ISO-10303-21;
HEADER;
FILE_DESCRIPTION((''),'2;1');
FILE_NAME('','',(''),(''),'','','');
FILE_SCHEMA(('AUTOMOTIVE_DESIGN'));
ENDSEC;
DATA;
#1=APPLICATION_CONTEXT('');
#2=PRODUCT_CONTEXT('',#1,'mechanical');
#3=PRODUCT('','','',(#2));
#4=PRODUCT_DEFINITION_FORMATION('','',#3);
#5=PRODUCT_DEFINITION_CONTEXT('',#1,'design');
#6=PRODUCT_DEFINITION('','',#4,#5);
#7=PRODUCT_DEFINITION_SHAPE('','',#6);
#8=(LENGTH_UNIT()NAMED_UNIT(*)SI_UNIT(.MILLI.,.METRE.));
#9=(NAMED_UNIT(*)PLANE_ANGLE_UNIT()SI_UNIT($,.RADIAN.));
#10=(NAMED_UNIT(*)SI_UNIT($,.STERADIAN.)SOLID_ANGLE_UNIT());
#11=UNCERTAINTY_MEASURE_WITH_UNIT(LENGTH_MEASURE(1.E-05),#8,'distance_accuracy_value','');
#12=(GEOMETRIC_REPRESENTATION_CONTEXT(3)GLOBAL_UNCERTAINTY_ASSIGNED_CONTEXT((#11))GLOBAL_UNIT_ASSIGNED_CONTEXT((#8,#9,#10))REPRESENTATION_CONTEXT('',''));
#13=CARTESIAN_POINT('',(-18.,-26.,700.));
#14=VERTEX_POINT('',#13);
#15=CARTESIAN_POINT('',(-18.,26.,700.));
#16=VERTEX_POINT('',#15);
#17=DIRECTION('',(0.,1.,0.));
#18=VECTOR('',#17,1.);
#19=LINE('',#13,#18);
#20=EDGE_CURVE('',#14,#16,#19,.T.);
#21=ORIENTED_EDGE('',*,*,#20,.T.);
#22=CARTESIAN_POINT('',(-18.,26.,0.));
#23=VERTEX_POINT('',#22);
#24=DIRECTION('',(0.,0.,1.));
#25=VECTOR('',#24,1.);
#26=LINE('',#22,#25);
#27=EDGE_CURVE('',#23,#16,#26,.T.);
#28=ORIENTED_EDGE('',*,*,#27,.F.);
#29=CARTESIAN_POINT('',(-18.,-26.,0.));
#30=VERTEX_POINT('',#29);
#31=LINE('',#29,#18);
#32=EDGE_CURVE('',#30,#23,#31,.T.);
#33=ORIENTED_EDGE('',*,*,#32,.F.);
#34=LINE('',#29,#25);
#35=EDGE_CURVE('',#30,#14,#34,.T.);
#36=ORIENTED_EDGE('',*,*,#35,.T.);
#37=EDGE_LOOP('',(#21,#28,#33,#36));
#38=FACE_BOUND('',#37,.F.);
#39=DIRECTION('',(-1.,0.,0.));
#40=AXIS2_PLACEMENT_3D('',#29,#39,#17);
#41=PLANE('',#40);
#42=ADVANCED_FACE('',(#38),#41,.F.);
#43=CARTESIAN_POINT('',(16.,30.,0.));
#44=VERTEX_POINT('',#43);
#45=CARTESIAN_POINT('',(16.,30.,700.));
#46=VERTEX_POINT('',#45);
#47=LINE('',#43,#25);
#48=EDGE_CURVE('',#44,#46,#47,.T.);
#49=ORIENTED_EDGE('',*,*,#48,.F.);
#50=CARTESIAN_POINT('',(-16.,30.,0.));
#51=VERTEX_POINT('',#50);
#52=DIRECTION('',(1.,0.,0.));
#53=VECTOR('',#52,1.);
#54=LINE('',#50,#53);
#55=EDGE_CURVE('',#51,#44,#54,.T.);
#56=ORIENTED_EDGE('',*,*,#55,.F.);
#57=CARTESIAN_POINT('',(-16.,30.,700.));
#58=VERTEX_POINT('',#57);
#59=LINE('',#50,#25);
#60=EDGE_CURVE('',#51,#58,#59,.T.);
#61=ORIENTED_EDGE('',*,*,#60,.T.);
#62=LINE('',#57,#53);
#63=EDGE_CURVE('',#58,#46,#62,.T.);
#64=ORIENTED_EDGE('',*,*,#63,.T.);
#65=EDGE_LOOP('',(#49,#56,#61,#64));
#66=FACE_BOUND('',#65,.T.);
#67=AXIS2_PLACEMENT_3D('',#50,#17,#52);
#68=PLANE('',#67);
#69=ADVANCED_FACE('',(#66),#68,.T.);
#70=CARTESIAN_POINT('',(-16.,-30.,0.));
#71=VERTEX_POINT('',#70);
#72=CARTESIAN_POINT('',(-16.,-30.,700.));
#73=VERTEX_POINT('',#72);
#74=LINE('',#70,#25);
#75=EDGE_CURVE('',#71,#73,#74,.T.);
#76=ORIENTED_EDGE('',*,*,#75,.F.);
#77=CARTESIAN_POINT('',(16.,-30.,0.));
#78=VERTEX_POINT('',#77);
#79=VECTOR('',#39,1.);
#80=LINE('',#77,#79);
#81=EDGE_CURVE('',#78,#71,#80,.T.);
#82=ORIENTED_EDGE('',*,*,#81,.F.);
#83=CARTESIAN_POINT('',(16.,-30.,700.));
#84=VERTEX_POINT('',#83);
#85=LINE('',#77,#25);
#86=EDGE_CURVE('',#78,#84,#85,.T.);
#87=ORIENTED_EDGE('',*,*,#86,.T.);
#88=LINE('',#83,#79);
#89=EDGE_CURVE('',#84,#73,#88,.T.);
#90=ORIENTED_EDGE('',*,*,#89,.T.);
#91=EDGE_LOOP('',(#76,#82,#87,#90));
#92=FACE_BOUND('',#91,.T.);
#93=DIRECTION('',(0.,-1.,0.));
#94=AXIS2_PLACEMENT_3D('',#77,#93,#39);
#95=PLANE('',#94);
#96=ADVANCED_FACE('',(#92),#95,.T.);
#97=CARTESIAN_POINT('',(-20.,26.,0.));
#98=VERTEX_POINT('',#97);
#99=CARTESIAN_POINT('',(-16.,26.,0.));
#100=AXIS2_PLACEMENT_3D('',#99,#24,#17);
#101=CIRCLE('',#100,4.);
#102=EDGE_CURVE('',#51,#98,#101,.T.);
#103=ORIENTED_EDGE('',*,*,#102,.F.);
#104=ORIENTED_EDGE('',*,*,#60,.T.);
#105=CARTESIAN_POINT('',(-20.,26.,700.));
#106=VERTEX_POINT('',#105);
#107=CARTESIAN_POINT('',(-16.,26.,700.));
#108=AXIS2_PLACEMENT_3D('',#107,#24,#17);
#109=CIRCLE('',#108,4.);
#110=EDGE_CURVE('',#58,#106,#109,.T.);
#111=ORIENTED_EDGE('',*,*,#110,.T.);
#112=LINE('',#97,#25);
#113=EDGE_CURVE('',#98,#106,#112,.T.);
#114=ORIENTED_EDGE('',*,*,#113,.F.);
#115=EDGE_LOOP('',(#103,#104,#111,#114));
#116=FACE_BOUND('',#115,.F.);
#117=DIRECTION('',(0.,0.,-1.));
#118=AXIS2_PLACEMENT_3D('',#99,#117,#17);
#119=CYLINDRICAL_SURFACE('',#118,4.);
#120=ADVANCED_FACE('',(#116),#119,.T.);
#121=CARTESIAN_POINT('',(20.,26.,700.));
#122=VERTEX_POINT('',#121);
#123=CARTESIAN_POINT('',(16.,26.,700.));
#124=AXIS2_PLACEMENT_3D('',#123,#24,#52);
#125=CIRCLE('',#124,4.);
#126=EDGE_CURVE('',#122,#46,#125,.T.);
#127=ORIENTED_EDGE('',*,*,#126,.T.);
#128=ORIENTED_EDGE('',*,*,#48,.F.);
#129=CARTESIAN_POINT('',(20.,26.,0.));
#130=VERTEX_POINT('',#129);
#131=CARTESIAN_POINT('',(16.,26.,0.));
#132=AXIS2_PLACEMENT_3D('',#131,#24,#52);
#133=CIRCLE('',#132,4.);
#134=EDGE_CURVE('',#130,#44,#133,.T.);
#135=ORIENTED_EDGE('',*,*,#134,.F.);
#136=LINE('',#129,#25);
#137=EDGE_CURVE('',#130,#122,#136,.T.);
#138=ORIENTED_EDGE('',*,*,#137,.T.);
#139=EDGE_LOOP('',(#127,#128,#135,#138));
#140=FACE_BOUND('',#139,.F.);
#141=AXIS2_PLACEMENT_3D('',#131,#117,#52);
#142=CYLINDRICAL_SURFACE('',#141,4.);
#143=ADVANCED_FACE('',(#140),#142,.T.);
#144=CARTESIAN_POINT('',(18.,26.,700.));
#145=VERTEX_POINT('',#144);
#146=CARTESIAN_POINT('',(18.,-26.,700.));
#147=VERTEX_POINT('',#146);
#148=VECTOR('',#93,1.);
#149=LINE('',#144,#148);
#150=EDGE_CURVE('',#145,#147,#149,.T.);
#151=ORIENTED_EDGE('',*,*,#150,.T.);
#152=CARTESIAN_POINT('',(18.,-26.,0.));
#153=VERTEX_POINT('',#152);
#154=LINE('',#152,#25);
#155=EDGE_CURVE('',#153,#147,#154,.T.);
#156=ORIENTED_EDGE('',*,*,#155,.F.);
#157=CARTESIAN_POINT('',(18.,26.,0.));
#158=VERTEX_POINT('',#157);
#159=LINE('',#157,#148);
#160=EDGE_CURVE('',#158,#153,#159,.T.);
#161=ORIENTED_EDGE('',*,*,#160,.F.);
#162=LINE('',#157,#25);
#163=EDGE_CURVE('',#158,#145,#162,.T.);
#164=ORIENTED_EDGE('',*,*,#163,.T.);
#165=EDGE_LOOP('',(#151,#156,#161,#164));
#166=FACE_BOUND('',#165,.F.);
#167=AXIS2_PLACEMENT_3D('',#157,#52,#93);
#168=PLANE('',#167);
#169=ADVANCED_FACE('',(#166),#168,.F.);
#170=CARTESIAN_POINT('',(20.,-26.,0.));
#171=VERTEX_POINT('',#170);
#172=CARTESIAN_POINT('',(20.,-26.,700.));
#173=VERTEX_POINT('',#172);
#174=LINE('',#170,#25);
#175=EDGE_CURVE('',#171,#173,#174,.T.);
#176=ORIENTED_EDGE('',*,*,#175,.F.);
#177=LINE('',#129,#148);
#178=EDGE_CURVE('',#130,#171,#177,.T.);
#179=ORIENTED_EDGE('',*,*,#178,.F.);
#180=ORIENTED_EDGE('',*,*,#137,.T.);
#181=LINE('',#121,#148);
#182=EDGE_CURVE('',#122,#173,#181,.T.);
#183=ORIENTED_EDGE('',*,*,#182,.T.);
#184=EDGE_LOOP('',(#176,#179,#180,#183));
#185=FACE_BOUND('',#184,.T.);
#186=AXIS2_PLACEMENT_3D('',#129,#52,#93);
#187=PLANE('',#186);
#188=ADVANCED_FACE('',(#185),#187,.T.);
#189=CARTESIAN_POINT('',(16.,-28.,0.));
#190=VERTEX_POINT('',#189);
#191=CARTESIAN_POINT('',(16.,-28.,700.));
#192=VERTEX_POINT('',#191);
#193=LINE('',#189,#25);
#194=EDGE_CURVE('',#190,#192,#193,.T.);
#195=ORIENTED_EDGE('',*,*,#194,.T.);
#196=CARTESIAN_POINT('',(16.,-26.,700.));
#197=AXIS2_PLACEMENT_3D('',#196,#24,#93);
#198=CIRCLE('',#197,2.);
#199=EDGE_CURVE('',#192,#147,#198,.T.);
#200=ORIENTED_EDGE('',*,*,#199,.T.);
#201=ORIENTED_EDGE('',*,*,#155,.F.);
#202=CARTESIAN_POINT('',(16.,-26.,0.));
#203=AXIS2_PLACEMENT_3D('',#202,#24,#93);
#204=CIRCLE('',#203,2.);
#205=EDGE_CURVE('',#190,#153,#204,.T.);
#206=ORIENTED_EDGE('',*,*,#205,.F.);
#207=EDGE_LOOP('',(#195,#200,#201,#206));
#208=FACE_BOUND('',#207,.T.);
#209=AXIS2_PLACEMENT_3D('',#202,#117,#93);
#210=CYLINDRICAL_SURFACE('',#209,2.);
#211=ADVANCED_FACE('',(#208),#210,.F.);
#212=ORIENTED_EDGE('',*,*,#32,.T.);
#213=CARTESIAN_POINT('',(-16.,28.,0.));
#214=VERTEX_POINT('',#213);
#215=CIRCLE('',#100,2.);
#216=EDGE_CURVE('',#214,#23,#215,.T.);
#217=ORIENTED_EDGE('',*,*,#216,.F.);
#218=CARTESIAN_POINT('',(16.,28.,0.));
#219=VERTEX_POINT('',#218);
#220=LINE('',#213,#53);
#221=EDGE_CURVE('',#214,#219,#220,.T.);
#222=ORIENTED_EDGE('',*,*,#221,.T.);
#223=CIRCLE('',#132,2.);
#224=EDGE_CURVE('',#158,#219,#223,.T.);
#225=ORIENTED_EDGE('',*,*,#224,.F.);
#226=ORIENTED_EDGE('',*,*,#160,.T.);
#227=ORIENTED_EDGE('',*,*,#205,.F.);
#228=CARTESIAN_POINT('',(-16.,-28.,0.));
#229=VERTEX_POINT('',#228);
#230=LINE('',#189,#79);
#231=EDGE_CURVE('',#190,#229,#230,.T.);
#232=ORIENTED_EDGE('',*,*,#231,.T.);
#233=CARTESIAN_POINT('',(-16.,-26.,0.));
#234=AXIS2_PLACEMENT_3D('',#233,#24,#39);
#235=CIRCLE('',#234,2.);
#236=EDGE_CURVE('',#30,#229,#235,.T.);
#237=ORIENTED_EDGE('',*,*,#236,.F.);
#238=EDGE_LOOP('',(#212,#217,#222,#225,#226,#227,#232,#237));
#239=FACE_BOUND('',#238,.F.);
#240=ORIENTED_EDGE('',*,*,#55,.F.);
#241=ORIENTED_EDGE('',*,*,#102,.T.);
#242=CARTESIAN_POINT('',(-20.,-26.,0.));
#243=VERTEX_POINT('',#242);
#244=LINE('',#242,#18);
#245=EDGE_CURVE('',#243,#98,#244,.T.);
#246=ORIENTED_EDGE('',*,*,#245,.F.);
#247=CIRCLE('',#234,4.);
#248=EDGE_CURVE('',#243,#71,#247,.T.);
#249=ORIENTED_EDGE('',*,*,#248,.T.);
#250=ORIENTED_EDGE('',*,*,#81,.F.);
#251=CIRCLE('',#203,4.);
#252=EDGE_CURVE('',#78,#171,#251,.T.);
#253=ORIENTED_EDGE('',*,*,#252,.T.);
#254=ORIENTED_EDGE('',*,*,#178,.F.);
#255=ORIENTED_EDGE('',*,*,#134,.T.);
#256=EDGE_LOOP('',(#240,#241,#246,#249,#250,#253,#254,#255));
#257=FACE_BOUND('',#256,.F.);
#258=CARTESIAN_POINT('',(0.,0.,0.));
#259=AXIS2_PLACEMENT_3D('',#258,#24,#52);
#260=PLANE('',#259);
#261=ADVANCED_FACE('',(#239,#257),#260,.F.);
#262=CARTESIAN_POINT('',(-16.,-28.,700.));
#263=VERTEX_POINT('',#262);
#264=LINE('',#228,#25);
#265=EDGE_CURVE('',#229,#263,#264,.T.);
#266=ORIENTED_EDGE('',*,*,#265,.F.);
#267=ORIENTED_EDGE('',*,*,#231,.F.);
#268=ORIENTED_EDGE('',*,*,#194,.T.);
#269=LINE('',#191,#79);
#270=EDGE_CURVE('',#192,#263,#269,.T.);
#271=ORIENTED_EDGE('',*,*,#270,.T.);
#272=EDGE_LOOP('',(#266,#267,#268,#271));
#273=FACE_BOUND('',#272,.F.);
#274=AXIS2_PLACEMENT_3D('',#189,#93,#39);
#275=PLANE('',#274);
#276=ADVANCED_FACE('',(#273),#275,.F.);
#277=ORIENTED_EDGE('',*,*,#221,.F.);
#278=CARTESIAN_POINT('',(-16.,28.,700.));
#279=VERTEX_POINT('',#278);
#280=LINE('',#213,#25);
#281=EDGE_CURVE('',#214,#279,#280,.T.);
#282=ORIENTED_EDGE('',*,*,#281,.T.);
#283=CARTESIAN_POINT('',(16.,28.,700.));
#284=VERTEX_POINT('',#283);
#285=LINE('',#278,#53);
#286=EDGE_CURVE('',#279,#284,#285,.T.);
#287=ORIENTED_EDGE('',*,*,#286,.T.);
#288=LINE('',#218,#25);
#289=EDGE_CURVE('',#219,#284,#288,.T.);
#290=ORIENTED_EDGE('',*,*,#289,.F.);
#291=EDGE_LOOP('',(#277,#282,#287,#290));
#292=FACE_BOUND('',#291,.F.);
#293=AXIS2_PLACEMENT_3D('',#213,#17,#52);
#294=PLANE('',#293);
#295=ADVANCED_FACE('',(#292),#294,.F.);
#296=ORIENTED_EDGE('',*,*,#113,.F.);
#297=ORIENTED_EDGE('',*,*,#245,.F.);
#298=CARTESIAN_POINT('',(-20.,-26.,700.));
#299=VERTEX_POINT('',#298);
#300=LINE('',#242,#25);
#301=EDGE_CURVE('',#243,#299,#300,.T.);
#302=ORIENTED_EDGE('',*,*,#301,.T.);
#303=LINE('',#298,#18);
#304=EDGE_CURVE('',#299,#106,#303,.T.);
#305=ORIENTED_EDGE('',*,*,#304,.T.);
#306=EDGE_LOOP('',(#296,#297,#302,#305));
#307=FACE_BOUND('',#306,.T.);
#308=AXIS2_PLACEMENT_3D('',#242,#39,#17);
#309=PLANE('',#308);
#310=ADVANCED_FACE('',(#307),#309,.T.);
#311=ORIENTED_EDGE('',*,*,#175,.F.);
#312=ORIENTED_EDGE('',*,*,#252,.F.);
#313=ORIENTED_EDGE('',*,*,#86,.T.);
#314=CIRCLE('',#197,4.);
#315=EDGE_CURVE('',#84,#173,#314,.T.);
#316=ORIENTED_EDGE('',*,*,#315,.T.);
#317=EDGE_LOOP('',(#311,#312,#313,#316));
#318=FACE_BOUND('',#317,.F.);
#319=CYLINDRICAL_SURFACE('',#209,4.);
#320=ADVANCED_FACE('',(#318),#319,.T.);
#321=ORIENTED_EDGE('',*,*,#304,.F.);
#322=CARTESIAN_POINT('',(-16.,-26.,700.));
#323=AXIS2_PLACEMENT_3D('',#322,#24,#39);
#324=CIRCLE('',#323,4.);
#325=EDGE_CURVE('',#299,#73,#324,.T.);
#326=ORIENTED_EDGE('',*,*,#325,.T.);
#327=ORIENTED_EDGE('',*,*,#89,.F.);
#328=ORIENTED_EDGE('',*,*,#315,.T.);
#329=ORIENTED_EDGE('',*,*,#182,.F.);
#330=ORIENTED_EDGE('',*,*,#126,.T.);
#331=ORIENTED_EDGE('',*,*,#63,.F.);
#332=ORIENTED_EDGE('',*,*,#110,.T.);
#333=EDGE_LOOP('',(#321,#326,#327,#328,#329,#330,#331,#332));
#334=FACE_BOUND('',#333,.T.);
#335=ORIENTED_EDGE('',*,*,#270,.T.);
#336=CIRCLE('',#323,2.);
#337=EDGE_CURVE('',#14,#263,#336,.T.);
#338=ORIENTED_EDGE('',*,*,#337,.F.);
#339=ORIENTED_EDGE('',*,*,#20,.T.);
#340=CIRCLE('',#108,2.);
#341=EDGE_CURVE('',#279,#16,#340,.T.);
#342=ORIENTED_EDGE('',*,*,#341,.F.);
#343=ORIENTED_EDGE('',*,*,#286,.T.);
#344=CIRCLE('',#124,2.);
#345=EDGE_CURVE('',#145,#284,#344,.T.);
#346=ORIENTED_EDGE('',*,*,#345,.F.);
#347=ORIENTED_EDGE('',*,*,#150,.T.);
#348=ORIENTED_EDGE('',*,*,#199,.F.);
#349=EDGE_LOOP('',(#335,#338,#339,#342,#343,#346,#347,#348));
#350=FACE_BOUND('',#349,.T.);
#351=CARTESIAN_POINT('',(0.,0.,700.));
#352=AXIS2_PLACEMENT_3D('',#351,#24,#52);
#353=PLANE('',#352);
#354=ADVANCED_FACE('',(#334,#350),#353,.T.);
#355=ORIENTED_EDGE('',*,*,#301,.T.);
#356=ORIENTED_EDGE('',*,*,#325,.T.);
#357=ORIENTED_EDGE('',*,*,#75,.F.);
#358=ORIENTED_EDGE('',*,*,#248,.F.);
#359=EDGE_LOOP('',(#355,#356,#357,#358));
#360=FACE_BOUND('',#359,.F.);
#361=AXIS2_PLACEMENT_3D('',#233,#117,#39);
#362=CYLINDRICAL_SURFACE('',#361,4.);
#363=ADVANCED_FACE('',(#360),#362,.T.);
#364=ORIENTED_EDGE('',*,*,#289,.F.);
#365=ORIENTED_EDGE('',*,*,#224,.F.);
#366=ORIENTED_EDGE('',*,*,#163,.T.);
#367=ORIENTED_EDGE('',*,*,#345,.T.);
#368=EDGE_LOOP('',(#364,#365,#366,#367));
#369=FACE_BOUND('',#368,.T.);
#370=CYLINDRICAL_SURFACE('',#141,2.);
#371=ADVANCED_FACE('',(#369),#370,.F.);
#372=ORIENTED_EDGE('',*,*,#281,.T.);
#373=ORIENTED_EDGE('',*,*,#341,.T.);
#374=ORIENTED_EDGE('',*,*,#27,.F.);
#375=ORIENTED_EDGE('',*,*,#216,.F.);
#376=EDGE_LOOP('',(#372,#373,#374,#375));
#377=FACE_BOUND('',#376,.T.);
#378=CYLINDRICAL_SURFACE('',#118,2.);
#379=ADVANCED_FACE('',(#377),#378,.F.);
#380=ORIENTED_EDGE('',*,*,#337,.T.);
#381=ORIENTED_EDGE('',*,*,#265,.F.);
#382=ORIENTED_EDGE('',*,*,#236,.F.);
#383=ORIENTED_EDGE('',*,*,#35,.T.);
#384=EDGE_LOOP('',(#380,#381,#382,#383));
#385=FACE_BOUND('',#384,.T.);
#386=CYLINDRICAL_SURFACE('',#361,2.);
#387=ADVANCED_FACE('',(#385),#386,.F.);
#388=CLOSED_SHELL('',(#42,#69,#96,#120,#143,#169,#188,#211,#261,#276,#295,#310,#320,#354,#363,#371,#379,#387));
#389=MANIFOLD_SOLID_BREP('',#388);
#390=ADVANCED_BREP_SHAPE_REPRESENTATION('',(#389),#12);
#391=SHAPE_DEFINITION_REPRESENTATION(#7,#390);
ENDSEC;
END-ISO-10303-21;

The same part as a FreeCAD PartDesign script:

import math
import FreeCAD as App
import Part
import Sketcher
Q = App.Units.Quantity

doc = App.newDocument("Part")
body = doc.addObject("PartDesign::Body", "Body")

sketch1 = doc.addObject("Sketcher::SketchObject", "Sketch")
body.addObject(sketch1)
sketch1.AttachmentSupport = (doc.XY_Plane, [""])
sketch1.MapMode = "FlatFace"
sketch1.addGeometry([
    Part.LineSegment(App.Vector(-20, 26, 0), App.Vector(-20, -26, 0)),
    Part.ArcOfCircle(Part.Circle(App.Vector(-16, -26, 0), App.Vector(0, 0, 1), 4), math.radians(180), math.radians(270)),
    Part.LineSegment(App.Vector(-16, -30, 0), App.Vector(16, -30, 0)),
    Part.ArcOfCircle(Part.Circle(App.Vector(16, -26, 0), App.Vector(0, 0, 1), 4), math.radians(-90), math.radians(0)),
    Part.LineSegment(App.Vector(20, -26, 0), App.Vector(20, 26, 0)),
    Part.ArcOfCircle(Part.Circle(App.Vector(16, 26, 0), App.Vector(0, 0, 1), 4), math.radians(0), math.radians(90)),
    Part.LineSegment(App.Vector(16, 30, 0), App.Vector(-16, 30, 0)),
    Part.ArcOfCircle(Part.Circle(App.Vector(-16, 26, 0), App.Vector(0, 0, 1), 4), math.radians(90), math.radians(180)),
    Part.ArcOfCircle(Part.Circle(App.Vector(-16, 26, 0), App.Vector(0, 0, 1), 2), math.radians(90), math.radians(180)),
    Part.LineSegment(App.Vector(-16, 28, 0), App.Vector(16, 28, 0)),
    Part.ArcOfCircle(Part.Circle(App.Vector(16, 26, 0), App.Vector(0, 0, 1), 2), math.radians(0), math.radians(90)),
    Part.LineSegment(App.Vector(18, 26, 0), App.Vector(18, -26, 0)),
    Part.ArcOfCircle(Part.Circle(App.Vector(16, -26, 0), App.Vector(0, 0, 1), 2), math.radians(-90), math.radians(0)),
    Part.LineSegment(App.Vector(16, -28, 0), App.Vector(-16, -28, 0)),
    Part.ArcOfCircle(Part.Circle(App.Vector(-16, -26, 0), App.Vector(0, 0, 1), 2), math.radians(180), math.radians(270)),
    Part.LineSegment(App.Vector(-18, -26, 0), App.Vector(-18, 26, 0)),
], False)
sketch1.addConstraint([
    Sketcher.Constraint("Tangent", 0, 2, 1, 1),
    Sketcher.Constraint("Tangent", 1, 2, 2, 1),
    Sketcher.Constraint("Tangent", 2, 2, 3, 1),
    Sketcher.Constraint("Tangent", 3, 2, 4, 1),
    Sketcher.Constraint("Tangent", 4, 2, 5, 1),
    Sketcher.Constraint("Tangent", 5, 2, 6, 1),
    Sketcher.Constraint("Tangent", 6, 2, 7, 1),
    Sketcher.Constraint("Tangent", 7, 2, 0, 1),
    Sketcher.Constraint("Tangent", 8, 1, 9, 1),
    Sketcher.Constraint("Tangent", 9, 2, 10, 2),
    Sketcher.Constraint("Tangent", 10, 1, 11, 1),
    Sketcher.Constraint("Tangent", 11, 2, 12, 2),
    Sketcher.Constraint("Tangent", 12, 1, 13, 1),
    Sketcher.Constraint("Tangent", 13, 2, 14, 2),
    Sketcher.Constraint("Tangent", 14, 1, 15, 1),
    Sketcher.Constraint("Tangent", 15, 2, 8, 2),
    Sketcher.Constraint("Vertical", 0),
    Sketcher.Constraint("Horizontal", 2),
    Sketcher.Constraint("Vertical", 4),
    Sketcher.Constraint("Horizontal", 6),
    Sketcher.Constraint("Horizontal", 9),
    Sketcher.Constraint("Vertical", 11),
    Sketcher.Constraint("Horizontal", 13),
    Sketcher.Constraint("Vertical", 15),
    Sketcher.Constraint("Coincident", 8, 3, 7, 3),
    Sketcher.Constraint("Coincident", 10, 3, 5, 3),
    Sketcher.Constraint("Coincident", 12, 3, 3, 3),
    Sketcher.Constraint("Equal", 1, 3),
    Sketcher.Constraint("Equal", 3, 5),
    Sketcher.Constraint("Equal", 5, 7),
    Sketcher.Constraint("Equal", 12, 14),
    Sketcher.Constraint("Symmetric", 1, 3, 5, 3, -1, 1),
    Sketcher.Constraint("Radius", 1, Q("4 mm")),
    Sketcher.Constraint("Radius", 8, Q("2 mm")),
    Sketcher.Constraint("DistanceX", 0, 2, -1, 1, Q("20 mm")),
    Sketcher.Constraint("DistanceY", 1, 2, -1, 1, Q("30 mm")),
])
pad1 = doc.addObject("PartDesign::Pad", "Pad")
body.addObject(pad1)
pad1.Profile = sketch1
pad1.Length = 700

doc.recompute()
